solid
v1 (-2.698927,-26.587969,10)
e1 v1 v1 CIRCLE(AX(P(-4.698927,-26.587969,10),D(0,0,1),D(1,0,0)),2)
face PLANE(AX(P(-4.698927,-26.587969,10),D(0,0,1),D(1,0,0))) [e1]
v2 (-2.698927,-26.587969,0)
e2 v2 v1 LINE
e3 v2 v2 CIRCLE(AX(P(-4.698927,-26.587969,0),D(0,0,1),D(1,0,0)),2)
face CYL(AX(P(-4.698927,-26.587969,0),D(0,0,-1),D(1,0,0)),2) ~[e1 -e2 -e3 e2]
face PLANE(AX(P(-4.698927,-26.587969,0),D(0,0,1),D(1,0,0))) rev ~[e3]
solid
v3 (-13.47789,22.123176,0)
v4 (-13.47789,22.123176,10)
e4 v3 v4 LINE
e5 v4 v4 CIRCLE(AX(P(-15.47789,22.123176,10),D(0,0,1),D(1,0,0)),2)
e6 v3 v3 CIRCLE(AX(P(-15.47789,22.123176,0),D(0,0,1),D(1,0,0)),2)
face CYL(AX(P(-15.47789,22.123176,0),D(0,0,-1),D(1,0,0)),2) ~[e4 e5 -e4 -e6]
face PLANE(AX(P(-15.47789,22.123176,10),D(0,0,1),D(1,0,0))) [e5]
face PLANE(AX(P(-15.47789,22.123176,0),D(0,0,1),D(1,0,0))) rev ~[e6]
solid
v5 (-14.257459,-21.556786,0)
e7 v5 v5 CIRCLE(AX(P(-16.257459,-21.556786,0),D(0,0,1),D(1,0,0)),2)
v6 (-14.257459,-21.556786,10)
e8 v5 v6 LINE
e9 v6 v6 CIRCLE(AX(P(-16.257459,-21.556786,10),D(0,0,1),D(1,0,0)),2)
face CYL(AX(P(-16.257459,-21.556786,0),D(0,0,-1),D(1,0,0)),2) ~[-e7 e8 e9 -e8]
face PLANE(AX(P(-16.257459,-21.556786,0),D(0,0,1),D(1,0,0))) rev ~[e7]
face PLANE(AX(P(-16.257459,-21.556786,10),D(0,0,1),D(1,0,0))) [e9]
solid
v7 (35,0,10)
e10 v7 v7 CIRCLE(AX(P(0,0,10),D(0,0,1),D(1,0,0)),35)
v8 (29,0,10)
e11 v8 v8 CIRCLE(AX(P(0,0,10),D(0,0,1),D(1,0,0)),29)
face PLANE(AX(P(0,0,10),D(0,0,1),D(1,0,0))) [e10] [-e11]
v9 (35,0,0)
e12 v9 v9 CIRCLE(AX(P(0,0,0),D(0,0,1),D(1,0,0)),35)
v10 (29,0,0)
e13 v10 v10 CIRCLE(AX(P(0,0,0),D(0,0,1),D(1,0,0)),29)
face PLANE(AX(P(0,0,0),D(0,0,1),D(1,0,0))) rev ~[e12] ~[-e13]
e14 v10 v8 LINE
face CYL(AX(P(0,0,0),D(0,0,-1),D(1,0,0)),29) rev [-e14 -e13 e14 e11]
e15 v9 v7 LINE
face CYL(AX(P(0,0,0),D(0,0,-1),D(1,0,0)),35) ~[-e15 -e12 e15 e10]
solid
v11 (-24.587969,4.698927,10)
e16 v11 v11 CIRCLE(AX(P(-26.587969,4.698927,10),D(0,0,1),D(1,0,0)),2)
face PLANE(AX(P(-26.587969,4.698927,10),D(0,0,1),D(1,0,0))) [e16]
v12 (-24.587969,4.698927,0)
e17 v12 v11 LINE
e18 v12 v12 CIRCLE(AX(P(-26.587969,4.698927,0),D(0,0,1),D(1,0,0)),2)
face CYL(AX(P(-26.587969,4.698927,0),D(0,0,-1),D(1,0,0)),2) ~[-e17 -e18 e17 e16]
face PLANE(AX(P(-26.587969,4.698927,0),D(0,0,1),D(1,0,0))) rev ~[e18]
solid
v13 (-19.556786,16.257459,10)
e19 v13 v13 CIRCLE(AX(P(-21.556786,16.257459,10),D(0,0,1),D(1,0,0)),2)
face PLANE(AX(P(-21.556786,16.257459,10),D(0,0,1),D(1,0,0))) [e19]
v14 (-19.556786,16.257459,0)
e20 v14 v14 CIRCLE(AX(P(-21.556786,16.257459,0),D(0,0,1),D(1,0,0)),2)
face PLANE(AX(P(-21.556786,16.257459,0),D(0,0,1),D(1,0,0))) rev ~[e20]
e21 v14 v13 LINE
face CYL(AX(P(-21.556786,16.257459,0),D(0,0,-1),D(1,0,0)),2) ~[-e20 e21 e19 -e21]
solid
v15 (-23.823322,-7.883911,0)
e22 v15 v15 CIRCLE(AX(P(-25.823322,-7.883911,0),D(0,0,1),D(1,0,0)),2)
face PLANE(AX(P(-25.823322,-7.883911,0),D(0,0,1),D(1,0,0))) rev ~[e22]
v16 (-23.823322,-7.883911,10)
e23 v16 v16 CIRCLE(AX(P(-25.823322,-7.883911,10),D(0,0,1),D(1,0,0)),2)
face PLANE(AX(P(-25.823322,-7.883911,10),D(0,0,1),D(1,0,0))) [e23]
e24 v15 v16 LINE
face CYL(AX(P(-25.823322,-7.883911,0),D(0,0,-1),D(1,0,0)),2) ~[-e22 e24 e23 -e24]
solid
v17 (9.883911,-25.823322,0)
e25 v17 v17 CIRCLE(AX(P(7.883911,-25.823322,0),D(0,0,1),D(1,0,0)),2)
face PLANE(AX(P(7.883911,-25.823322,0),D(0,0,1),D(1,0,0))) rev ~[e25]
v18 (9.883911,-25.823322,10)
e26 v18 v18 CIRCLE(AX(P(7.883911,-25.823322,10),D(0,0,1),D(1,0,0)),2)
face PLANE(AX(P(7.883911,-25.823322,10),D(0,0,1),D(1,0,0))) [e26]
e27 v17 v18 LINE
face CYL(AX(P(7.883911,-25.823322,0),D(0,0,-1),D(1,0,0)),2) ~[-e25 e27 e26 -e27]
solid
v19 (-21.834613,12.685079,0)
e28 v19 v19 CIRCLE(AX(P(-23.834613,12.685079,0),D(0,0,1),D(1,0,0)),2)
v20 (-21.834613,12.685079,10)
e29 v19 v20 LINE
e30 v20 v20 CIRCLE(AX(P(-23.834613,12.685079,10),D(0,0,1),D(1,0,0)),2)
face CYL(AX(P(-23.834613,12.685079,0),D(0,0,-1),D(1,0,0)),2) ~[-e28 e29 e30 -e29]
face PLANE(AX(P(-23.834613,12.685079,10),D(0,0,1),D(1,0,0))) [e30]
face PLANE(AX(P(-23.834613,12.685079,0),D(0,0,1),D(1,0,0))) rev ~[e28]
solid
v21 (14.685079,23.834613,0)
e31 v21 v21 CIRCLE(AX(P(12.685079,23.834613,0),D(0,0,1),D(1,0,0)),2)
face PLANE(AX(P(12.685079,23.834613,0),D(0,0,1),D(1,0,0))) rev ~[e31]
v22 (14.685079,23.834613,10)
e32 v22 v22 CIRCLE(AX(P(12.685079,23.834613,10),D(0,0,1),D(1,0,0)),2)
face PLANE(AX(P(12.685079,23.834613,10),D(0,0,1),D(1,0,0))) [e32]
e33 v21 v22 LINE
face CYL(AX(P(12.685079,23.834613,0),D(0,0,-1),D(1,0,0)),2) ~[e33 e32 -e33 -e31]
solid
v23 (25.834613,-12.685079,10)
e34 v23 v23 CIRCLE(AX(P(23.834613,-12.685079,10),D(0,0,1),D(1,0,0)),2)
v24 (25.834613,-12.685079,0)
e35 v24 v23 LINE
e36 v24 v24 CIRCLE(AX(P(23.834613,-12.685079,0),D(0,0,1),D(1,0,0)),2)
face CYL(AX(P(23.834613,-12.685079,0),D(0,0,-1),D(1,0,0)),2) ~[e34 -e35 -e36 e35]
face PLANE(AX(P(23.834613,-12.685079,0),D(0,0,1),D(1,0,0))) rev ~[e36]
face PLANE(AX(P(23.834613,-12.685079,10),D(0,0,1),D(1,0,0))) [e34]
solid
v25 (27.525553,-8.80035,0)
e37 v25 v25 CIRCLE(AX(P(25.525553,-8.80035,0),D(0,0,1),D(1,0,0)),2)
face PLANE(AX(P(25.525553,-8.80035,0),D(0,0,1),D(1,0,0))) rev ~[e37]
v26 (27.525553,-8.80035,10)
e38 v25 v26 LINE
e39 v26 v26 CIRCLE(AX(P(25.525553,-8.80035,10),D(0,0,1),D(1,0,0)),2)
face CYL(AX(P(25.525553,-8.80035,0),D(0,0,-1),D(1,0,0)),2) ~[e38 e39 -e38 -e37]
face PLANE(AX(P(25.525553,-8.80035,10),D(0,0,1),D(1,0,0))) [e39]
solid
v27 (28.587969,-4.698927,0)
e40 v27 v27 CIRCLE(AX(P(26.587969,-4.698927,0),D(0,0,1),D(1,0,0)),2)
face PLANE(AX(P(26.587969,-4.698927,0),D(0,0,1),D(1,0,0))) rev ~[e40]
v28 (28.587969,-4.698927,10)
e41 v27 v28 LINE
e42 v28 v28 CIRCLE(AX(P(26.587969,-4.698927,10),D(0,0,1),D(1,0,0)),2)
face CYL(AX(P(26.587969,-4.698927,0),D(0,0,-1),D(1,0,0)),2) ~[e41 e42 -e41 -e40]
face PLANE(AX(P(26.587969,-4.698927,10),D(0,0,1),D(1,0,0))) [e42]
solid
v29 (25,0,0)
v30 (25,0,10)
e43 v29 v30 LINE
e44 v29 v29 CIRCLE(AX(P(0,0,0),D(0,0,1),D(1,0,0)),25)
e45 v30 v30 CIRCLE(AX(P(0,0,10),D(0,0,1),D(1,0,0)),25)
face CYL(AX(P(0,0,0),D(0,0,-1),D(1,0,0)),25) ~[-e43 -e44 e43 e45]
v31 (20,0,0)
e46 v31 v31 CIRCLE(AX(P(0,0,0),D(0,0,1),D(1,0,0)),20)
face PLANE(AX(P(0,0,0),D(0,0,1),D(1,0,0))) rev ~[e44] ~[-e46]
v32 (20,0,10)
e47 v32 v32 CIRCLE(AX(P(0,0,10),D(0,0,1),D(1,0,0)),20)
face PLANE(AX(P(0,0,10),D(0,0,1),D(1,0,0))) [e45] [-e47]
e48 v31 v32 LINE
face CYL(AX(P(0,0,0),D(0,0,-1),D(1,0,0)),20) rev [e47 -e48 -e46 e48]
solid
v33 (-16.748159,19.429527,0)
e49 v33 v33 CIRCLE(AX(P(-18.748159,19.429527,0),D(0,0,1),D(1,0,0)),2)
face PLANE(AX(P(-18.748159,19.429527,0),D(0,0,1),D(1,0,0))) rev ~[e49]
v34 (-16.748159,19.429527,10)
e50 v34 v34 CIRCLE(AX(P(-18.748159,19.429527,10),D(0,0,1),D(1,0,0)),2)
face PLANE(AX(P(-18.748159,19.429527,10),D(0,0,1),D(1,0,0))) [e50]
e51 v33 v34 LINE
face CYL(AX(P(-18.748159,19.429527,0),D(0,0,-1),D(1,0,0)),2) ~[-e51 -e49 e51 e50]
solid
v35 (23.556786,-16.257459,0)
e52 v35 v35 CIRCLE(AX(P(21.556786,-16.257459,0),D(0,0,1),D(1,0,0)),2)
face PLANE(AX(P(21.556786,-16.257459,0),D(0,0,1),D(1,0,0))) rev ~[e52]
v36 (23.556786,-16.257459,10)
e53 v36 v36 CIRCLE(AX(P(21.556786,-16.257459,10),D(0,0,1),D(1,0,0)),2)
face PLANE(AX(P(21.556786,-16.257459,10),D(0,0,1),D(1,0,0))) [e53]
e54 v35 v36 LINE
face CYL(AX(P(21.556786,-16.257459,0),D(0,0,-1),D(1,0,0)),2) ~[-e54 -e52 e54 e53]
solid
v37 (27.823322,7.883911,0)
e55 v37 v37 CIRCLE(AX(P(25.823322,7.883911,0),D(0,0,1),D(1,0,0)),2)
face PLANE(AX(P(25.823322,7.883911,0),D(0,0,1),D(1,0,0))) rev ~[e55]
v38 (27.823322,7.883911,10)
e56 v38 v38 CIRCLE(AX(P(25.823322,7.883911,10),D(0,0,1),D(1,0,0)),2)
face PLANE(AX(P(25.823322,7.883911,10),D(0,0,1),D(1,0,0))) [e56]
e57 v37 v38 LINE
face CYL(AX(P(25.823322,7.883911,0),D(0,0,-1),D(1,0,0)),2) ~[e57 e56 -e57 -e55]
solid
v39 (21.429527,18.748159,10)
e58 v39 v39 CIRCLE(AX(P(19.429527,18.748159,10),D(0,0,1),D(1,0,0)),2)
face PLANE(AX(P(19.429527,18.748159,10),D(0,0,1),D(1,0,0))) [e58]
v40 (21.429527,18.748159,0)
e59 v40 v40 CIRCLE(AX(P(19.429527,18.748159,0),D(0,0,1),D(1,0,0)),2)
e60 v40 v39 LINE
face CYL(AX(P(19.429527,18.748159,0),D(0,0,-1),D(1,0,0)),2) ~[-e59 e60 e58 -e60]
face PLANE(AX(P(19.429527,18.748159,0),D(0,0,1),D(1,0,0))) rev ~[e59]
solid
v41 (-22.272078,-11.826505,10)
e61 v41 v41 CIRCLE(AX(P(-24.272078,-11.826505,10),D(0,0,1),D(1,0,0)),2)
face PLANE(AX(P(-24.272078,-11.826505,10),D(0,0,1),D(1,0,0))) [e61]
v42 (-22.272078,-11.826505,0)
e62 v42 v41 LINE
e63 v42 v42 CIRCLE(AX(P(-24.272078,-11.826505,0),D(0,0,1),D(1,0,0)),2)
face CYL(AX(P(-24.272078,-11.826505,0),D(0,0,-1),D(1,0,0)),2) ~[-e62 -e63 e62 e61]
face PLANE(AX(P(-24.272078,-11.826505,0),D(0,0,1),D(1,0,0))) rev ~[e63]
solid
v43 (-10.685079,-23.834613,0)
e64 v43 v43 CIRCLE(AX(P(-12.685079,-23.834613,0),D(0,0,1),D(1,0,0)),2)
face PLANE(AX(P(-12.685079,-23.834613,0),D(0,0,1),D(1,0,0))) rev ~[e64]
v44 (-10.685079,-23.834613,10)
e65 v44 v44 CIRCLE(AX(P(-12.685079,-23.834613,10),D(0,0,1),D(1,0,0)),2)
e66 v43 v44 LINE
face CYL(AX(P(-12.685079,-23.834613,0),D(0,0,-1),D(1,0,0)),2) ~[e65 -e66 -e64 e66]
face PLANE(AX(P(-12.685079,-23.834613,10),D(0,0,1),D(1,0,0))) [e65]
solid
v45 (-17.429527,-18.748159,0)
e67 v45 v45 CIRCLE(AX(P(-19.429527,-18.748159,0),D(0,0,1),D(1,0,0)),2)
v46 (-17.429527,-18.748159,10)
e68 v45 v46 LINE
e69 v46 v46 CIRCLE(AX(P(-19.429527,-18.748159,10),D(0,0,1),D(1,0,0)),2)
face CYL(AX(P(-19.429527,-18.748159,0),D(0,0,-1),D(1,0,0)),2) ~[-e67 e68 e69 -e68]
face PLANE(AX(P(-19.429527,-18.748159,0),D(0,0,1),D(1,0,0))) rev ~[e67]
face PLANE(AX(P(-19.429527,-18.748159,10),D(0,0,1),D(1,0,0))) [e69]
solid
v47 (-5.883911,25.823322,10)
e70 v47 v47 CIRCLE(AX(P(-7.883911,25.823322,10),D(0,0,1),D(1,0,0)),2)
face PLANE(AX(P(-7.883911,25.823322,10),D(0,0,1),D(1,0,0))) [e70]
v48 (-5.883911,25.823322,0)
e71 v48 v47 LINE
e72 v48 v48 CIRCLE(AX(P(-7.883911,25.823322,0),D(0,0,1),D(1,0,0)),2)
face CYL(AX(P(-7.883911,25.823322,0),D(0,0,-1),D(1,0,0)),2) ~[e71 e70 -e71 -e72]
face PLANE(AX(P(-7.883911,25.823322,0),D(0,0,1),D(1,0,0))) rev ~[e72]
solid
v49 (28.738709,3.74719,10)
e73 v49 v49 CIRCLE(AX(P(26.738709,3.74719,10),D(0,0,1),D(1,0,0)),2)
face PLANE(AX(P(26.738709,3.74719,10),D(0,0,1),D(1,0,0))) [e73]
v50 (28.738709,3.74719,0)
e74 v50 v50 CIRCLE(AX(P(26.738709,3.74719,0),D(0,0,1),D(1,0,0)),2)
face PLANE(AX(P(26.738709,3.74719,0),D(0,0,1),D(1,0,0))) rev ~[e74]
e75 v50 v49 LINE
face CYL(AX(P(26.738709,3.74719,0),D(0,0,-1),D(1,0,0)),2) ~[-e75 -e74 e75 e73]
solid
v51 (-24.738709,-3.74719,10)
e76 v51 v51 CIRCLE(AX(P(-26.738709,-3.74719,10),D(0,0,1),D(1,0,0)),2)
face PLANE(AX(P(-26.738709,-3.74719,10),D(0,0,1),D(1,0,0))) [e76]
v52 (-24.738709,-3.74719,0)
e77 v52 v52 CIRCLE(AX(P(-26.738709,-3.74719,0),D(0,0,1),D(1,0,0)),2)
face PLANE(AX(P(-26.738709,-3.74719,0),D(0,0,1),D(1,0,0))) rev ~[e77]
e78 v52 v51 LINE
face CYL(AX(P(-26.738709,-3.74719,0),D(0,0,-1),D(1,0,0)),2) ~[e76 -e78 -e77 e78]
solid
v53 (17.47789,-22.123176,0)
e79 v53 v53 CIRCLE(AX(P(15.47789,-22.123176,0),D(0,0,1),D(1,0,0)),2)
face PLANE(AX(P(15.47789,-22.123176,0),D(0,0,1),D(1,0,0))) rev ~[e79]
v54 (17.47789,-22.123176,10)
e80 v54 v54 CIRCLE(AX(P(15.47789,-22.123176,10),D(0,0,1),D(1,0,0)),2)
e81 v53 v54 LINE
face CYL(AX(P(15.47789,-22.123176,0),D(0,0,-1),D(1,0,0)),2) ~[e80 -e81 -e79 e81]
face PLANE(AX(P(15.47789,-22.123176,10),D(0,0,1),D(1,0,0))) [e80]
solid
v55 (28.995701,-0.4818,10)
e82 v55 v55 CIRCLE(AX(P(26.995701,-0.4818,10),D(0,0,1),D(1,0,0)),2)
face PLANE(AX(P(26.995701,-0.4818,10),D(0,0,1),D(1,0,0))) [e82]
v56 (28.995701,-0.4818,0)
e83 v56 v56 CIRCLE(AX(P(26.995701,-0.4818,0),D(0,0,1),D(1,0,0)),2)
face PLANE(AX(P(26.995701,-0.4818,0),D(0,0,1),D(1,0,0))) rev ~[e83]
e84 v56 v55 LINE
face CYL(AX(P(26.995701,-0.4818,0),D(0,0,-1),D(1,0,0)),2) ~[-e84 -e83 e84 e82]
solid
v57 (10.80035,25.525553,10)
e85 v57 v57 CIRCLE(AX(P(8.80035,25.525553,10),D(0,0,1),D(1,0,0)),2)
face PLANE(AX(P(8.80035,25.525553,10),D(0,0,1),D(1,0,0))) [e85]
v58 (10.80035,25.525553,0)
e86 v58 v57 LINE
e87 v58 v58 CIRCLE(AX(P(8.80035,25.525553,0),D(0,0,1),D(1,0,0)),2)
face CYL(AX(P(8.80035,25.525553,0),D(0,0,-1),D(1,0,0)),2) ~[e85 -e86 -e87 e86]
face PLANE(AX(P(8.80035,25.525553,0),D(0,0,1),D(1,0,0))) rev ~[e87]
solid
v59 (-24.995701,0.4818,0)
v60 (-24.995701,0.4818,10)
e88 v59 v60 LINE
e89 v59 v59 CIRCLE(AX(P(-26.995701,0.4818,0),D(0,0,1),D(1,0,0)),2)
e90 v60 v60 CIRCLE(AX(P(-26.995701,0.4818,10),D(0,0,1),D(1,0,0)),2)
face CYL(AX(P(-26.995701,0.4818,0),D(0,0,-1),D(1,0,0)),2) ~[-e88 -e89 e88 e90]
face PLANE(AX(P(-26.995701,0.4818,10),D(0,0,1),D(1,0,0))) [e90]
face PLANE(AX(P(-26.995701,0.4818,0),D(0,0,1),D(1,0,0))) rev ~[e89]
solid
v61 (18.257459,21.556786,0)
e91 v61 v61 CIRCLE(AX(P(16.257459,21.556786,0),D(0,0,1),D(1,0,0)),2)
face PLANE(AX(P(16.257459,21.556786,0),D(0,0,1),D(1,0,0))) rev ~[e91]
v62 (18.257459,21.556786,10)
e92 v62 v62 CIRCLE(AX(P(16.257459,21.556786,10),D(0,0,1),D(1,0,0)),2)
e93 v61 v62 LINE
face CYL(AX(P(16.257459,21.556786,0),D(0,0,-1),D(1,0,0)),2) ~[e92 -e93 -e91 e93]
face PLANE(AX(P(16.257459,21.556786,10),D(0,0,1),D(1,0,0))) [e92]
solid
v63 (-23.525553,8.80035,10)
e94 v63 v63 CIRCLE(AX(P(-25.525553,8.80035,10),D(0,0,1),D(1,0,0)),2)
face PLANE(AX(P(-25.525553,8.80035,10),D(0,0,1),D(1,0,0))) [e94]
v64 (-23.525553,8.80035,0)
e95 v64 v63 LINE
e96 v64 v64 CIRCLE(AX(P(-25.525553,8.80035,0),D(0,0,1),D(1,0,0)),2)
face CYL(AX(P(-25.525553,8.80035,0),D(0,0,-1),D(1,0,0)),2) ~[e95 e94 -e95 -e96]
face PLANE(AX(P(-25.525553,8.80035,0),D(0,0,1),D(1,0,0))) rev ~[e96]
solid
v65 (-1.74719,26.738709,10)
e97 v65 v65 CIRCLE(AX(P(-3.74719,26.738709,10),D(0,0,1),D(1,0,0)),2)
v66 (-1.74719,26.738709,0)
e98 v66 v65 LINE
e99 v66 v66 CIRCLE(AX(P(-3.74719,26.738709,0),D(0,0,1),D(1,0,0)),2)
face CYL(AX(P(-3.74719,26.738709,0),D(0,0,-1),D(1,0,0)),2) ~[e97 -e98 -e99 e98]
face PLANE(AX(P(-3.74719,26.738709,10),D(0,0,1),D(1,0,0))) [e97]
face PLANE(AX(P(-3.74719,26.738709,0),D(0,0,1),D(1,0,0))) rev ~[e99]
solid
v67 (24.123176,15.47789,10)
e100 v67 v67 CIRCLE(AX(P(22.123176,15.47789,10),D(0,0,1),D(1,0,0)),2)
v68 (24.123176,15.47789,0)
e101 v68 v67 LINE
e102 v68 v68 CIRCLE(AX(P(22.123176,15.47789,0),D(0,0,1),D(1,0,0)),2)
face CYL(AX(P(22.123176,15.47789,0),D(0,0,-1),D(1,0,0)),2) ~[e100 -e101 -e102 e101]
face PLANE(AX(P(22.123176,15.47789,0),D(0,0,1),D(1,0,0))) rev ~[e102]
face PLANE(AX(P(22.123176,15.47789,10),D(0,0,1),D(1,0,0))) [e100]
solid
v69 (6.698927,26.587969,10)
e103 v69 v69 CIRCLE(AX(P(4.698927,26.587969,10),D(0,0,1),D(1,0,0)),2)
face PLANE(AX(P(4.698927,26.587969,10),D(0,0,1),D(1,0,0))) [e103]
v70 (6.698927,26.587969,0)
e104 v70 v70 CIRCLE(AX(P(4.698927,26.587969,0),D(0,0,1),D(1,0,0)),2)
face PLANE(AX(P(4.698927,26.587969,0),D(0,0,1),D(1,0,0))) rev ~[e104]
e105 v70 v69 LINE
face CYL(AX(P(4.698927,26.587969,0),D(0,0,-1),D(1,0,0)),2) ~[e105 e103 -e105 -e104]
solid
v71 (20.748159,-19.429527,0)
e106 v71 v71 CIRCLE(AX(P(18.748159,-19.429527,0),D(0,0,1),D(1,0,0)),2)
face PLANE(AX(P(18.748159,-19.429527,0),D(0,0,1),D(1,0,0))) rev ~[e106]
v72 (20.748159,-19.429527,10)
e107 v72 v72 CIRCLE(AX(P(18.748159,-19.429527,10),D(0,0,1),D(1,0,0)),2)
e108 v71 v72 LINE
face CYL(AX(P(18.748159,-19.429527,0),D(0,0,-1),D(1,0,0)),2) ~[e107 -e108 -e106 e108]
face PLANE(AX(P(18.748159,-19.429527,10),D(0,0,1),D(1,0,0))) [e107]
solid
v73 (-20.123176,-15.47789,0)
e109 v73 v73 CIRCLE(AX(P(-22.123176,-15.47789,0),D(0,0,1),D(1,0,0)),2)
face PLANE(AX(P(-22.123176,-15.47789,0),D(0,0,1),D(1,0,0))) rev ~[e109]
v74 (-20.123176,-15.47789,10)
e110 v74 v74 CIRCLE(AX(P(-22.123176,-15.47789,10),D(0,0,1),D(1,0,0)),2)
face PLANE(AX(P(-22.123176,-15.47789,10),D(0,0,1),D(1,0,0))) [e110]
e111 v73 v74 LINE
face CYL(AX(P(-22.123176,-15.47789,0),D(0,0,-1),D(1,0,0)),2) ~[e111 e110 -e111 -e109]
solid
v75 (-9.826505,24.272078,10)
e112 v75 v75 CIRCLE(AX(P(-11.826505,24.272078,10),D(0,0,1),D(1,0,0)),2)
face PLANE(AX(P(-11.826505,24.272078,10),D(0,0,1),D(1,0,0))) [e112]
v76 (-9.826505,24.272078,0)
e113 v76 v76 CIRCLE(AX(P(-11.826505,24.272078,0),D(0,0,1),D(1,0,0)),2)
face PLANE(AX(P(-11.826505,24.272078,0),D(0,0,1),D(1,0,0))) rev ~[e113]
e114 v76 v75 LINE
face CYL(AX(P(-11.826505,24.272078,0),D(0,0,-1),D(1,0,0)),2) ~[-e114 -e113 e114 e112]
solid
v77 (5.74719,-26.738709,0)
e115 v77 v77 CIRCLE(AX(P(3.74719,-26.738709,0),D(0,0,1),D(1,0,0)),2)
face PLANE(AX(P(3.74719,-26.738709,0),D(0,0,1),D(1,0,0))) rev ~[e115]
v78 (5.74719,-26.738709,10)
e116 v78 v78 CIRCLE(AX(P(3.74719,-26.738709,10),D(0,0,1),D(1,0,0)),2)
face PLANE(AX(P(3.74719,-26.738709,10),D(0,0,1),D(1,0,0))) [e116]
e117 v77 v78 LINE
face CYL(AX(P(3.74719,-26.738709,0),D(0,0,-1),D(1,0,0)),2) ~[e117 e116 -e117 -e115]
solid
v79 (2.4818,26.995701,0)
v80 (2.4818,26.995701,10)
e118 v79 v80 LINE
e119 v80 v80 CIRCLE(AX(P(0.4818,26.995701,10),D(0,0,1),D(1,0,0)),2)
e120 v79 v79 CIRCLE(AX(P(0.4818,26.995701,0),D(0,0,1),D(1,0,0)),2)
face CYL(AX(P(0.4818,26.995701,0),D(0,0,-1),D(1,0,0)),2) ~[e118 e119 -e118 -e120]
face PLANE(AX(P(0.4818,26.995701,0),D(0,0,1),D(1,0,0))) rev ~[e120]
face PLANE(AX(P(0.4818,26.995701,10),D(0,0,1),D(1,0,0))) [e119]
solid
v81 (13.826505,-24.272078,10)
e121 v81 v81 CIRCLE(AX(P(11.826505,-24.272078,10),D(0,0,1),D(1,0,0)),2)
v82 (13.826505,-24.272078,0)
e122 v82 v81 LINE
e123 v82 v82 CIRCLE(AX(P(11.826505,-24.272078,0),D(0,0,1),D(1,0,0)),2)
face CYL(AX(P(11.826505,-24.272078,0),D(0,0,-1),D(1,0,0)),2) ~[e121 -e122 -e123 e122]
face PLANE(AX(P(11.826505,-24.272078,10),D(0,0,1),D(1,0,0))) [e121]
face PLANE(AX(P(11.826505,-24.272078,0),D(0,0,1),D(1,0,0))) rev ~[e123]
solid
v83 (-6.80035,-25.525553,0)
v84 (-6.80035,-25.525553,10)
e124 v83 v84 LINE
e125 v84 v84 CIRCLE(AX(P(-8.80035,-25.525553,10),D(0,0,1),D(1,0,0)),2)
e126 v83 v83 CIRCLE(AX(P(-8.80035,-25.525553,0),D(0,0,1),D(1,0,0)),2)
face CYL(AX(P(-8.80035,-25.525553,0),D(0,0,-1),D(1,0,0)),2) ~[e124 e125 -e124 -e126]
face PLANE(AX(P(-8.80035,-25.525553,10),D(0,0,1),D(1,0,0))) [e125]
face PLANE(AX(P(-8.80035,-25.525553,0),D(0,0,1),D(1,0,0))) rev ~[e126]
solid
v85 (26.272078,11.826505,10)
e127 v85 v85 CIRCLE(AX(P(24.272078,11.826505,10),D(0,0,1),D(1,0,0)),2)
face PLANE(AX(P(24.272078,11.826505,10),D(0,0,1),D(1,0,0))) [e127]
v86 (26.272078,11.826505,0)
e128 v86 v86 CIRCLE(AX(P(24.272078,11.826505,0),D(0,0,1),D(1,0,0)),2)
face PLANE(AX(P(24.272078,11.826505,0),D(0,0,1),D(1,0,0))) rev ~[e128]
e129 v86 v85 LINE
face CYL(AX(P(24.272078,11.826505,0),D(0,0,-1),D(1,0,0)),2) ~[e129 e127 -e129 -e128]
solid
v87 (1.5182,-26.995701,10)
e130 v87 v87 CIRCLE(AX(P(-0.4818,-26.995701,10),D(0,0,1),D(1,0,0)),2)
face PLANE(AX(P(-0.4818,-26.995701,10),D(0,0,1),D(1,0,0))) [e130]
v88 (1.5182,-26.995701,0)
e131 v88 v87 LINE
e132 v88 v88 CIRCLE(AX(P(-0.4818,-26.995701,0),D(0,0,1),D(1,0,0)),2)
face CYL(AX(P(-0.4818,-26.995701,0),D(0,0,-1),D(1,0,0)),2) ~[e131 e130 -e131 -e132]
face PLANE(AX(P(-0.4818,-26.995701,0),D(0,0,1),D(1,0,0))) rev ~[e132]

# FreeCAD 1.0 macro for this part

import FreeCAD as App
import Part
import Sketcher
from FreeCAD import Vector
Q = App.Units.Quantity

doc = App.newDocument("Part")
body = doc.addObject("PartDesign::Body", "Body")

# Sketch on XY plane
sketch1 = body.newObject("Sketcher::SketchObject", "Sketch")
sketch1.AttachmentSupport = (doc.getObject("XY_Plane"), [""])
sketch1.MapMode = "FlatFace"
sketch1.addGeometry([
    Part.Circle(Vector(0, 0, 0), Vector(0, 0, 1), 25),
    Part.Circle(Vector(0, 0, 0), Vector(0, 0, 1), 20),
], False)
sketch1.addConstraint([
    Sketcher.Constraint("Coincident", 0, 3, -1, 1),
    Sketcher.Constraint("Coincident", 1, 3, -1, 1),
    Sketcher.Constraint("Diameter", 0, Q("50 mm")),
    Sketcher.Constraint("Diameter", 1, Q("40 mm")),
])
pad1 = body.newObject("PartDesign::Pad", "Pad")
pad1.Profile = sketch1
pad1.Length = 10
body2 = doc.addObject("PartDesign::Body", "Body001")

# Sketch on XY plane
sketch2 = body2.newObject("Sketcher::SketchObject", "Sketch001")
sketch2.AttachmentSupport = (doc.getObject("XY_Plane001"), [""])
sketch2.MapMode = "FlatFace"
sketch2.addGeometry(Part.Circle(Vector(16.3, 21.6, 0), Vector(0, 0, 1), 2), False)
sketch2.addConstraint([
    Sketcher.Constraint("Diameter", 0, Q("4 mm")),
    Sketcher.Constraint("DistanceX", -1, 1, 0, 3, Q("16.257459 mm")),
    Sketcher.Constraint("DistanceY", -1, 1, 0, 3, Q("21.556786 mm")),
])
pad2 = body2.newObject("PartDesign::Pad", "Pad001")
pad2.Profile = sketch2
pad2.Length = 10
body3 = doc.addObject("PartDesign::Body", "Body002")

# Sketch on XY plane
sketch3 = body3.newObject("Sketcher::SketchObject", "Sketch002")
sketch3.AttachmentSupport = (doc.getObject("XY_Plane002"), [""])
sketch3.MapMode = "FlatFace"
sketch3.addGeometry(Part.Circle(Vector(19.4, 18.7, 0), Vector(0, 0, 1), 2), False)
sketch3.addConstraint([
    Sketcher.Constraint("Diameter", 0, Q("4 mm")),
    Sketcher.Constraint("DistanceY", -1, 1, 0, 3, Q("18.748159 mm")),
    Sketcher.Constraint("DistanceX", -1, 1, 0, 3, Q("19.429527 mm")),
])
pad3 = body3.newObject("PartDesign::Pad", "Pad002")
pad3.Profile = sketch3
pad3.Length = 10
body4 = doc.addObject("PartDesign::Body", "Body003")

# Sketch on XY plane
sketch4 = body4.newObject("Sketcher::SketchObject", "Sketch003")
sketch4.AttachmentSupport = (doc.getObject("XY_Plane003"), [""])
sketch4.MapMode = "FlatFace"
sketch4.addGeometry(Part.Circle(Vector(22.1, 15.5, 0), Vector(0, 0, 1), 2), False)
sketch4.addConstraint([
    Sketcher.Constraint("Diameter", 0, Q("4 mm")),
    Sketcher.Constraint("DistanceY", -1, 1, 0, 3, Q("15.47789 mm")),
    Sketcher.Constraint("DistanceX", -1, 1, 0, 3, Q("22.123176 mm")),
])
pad4 = body4.newObject("PartDesign::Pad", "Pad003")
pad4.Profile = sketch4
pad4.Length = 10
body5 = doc.addObject("PartDesign::Body", "Body004")

# Sketch on XY plane
sketch5 = body5.newObject("Sketcher::SketchObject", "Sketch004")
sketch5.AttachmentSupport = (doc.getObject("XY_Plane004"), [""])
sketch5.MapMode = "FlatFace"
sketch5.addGeometry(Part.Circle(Vector(24.3, 11.8, 0), Vector(0, 0, 1), 2), False)
sketch5.addConstraint([
    Sketcher.Constraint("Diameter", 0, Q("4 mm")),
    Sketcher.Constraint("DistanceX", -1, 1, 0, 3, Q("24.272078 mm")),
    Sketcher.Constraint("DistanceY", -1, 1, 0, 3, Q("11.826505 mm")),
])
pad5 = body5.newObject("PartDesign::Pad", "Pad004")
pad5.Profile = sketch5
pad5.Length = 10
body6 = doc.addObject("PartDesign::Body", "Body005")

# Sketch on XY plane
sketch6 = body6.newObject("Sketcher::SketchObject", "Sketch005")
sketch6.AttachmentSupport = (doc.getObject("XY_Plane005"), [""])
sketch6.MapMode = "FlatFace"
sketch6.addGeometry(Part.Circle(Vector(25.8, 7.9, 0), Vector(0, 0, 1), 2), False)
sketch6.addConstraint([
    Sketcher.Constraint("Diameter", 0, Q("4 mm")),
    Sketcher.Constraint("DistanceX", -1, 1, 0, 3, Q("25.823322 mm")),
    Sketcher.Constraint("DistanceY", -1, 1, 0, 3, Q("7.883911 mm")),
])
pad6 = body6.newObject("PartDesign::Pad", "Pad005")
pad6.Profile = sketch6
pad6.Length = 10
body7 = doc.addObject("PartDesign::Body", "Body006")

# Sketch on XY plane
sketch7 = body7.newObject("Sketcher::SketchObject", "Sketch006")
sketch7.AttachmentSupport = (doc.getObject("XY_Plane006"), [""])
sketch7.MapMode = "FlatFace"
sketch7.addGeometry(Part.Circle(Vector(26.7, 3.7, 0), Vector(0, 0, 1), 2), False)
sketch7.addConstraint([
    Sketcher.Constraint("Diameter", 0, Q("4 mm")),
    Sketcher.Constraint("DistanceX", -1, 1, 0, 3, Q("26.738709 mm")),
    Sketcher.Constraint("DistanceY", -1, 1, 0, 3, Q("3.74719 mm")),
])
pad7 = body7.newObject("PartDesign::Pad", "Pad006")
pad7.Profile = sketch7
pad7.Length = 10
body8 = doc.addObject("PartDesign::Body", "Body007")

# Sketch on XY plane
sketch8 = body8.newObject("Sketcher::SketchObject", "Sketch007")
sketch8.AttachmentSupport = (doc.getObject("XY_Plane007"), [""])
sketch8.MapMode = "FlatFace"
sketch8.addGeometry(Part.Circle(Vector(27, -0.5, 0), Vector(0, 0, 1), 2), False)
sketch8.addConstraint([
    Sketcher.Constraint("Diameter", 0, Q("4 mm")),
    Sketcher.Constraint("DistanceX", -1, 1, 0, 3, Q("26.995701 mm")),
    Sketcher.Constraint("DistanceY", 0, 3, -1, 1, Q("0.4818 mm")),
])
pad8 = body8.newObject("PartDesign::Pad", "Pad007")
pad8.Profile = sketch8
pad8.Length = 10
body9 = doc.addObject("PartDesign::Body", "Body008")

# Sketch on XY plane
sketch9 = body9.newObject("Sketcher::SketchObject", "Sketch008")
sketch9.AttachmentSupport = (doc.getObject("XY_Plane008"), [""])
sketch9.MapMode = "FlatFace"
sketch9.addGeometry(Part.Circle(Vector(26.6, -4.7, 0), Vector(0, 0, 1), 2), False)
sketch9.addConstraint([
    Sketcher.Constraint("Diameter", 0, Q("4 mm")),
    Sketcher.Constraint("DistanceX", -1, 1, 0, 3, Q("26.587969 mm")),
    Sketcher.Constraint("DistanceY", 0, 3, -1, 1, Q("4.698927 mm")),
])
pad9 = body9.newObject("PartDesign::Pad", "Pad008")
pad9.Profile = sketch9
pad9.Length = 10
body10 = doc.addObject("PartDesign::Body", "Body009")

# Sketch on XY plane
sketch10 = body10.newObject("Sketcher::SketchObject", "Sketch009")
sketch10.AttachmentSupport = (doc.getObject("XY_Plane009"), [""])
sketch10.MapMode = "FlatFace"
sketch10.addGeometry(Part.Circle(Vector(25.5, -8.8, 0), Vector(0, 0, 1), 2), False)
sketch10.addConstraint([
    Sketcher.Constraint("Diameter", 0, Q("4 mm")),
    Sketcher.Constraint("DistanceY", 0, 3, -1, 1, Q("8.80035 mm")),
    Sketcher.Constraint("DistanceX", -1, 1, 0, 3, Q("25.525553 mm")),
])
pad10 = body10.newObject("PartDesign::Pad", "Pad009")
pad10.Profile = sketch10
pad10.Length = 10
body11 = doc.addObject("PartDesign::Body", "Body010")

# Sketch on XY plane
sketch11 = body11.newObject("Sketcher::SketchObject", "Sketch010")
sketch11.AttachmentSupport = (doc.getObject("XY_Plane010"), [""])
sketch11.MapMode = "FlatFace"
sketch11.addGeometry(Part.Circle(Vector(23.8, -12.7, 0), Vector(0, 0, 1), 2), False)
sketch11.addConstraint([
    Sketcher.Constraint("Diameter", 0, Q("4 mm")),
    Sketcher.Constraint("DistanceY", 0, 3, -1, 1, Q("12.685079 mm")),
    Sketcher.Constraint("DistanceX", -1, 1, 0, 3, Q("23.834613 mm")),
])
pad11 = body11.newObject("PartDesign::Pad", "Pad010")
pad11.Profile = sketch11
pad11.Length = 10
body12 = doc.addObject("PartDesign::Body", "Body011")

# Sketch on XY plane
sketch12 = body12.newObject("Sketcher::SketchObject", "Sketch011")
sketch12.AttachmentSupport = (doc.getObject("XY_Plane011"), [""])
sketch12.MapMode = "FlatFace"
sketch12.addGeometry(Part.Circle(Vector(21.6, -16.3, 0), Vector(0, 0, 1), 2), False)
sketch12.addConstraint([
    Sketcher.Constraint("Diameter", 0, Q("4 mm")),
    Sketcher.Constraint("DistanceY", 0, 3, -1, 1, Q("16.257459 mm")),
    Sketcher.Constraint("DistanceX", -1, 1, 0, 3, Q("21.556786 mm")),
])
pad12 = body12.newObject("PartDesign::Pad", "Pad011")
pad12.Profile = sketch12
pad12.Length = 10
body13 = doc.addObject("PartDesign::Body", "Body012")

# Sketch on XY plane
sketch13 = body13.newObject("Sketcher::SketchObject", "Sketch012")
sketch13.AttachmentSupport = (doc.getObject("XY_Plane012"), [""])
sketch13.MapMode = "FlatFace"
sketch13.addGeometry(Part.Circle(Vector(18.7, -19.4, 0), Vector(0, 0, 1), 2), False)
sketch13.addConstraint([
    Sketcher.Constraint("Diameter", 0, Q("4 mm")),
    Sketcher.Constraint("DistanceX", -1, 1, 0, 3, Q("18.748159 mm")),
    Sketcher.Constraint("DistanceY", 0, 3, -1, 1, Q("19.429527 mm")),
])
pad13 = body13.newObject("PartDesign::Pad", "Pad012")
pad13.Profile = sketch13
pad13.Length = 10
body14 = doc.addObject("PartDesign::Body", "Body013")

# Sketch on XY plane
sketch14 = body14.newObject("Sketcher::SketchObject", "Sketch013")
sketch14.AttachmentSupport = (doc.getObject("XY_Plane013"), [""])
sketch14.MapMode = "FlatFace"
sketch14.addGeometry(Part.Circle(Vector(7.9, -25.8, 0), Vector(0, 0, 1), 2), False)
sketch14.addConstraint([
    Sketcher.Constraint("Diameter", 0, Q("4 mm")),
    Sketcher.Constraint("DistanceX", -1, 1, 0, 3, Q("7.883911 mm")),
    Sketcher.Constraint("DistanceY", 0, 3, -1, 1, Q("25.823322 mm")),
])
pad14 = body14.newObject("PartDesign::Pad", "Pad013")
pad14.Profile = sketch14
pad14.Length = 10
body15 = doc.addObject("PartDesign::Body", "Body014")

# Sketch on XY plane
sketch15 = body15.newObject("Sketcher::SketchObject", "Sketch014")
sketch15.AttachmentSupport = (doc.getObject("XY_Plane014"), [""])
sketch15.MapMode = "FlatFace"
sketch15.addGeometry(Part.Circle(Vector(3.7, -26.7, 0), Vector(0, 0, 1), 2), False)
sketch15.addConstraint([
    Sketcher.Constraint("Diameter", 0, Q("4 mm")),
    Sketcher.Constraint("DistanceX", -1, 1, 0, 3, Q("3.74719 mm")),
    Sketcher.Constraint("DistanceY", 0, 3, -1, 1, Q("26.738709 mm")),
])
pad15 = body15.newObject("PartDesign::Pad", "Pad014")
pad15.Profile = sketch15
pad15.Length = 10
body16 = doc.addObject("PartDesign::Body", "Body015")

# Sketch on XY plane
sketch16 = body16.newObject("Sketcher::SketchObject", "Sketch015")
sketch16.AttachmentSupport = (doc.getObject("XY_Plane015"), [""])
sketch16.MapMode = "FlatFace"
sketch16.addGeometry(Part.Circle(Vector(-0.5, -27, 0), Vector(0, 0, 1), 2), False)
sketch16.addConstraint([
    Sketcher.Constraint("Diameter", 0, Q("4 mm")),
    Sketcher.Constraint("DistanceX", 0, 3, -1, 1, Q("0.4818 mm")),
    Sketcher.Constraint("DistanceY", 0, 3, -1, 1, Q("26.995701 mm")),
])
pad16 = body16.newObject("PartDesign::Pad", "Pad015")
pad16.Profile = sketch16
pad16.Length = 10
body17 = doc.addObject("PartDesign::Body", "Body016")

# Sketch on XY plane
sketch17 = body17.newObject("Sketcher::SketchObject", "Sketch016")
sketch17.AttachmentSupport = (doc.getObject("XY_Plane016"), [""])
sketch17.MapMode = "FlatFace"
sketch17.addGeometry(Part.Circle(Vector(-4.7, -26.6, 0), Vector(0, 0, 1), 2), False)
sketch17.addConstraint([
    Sketcher.Constraint("Diameter", 0, Q("4 mm")),
    Sketcher.Constraint("DistanceY", 0, 3, -1, 1, Q("26.587969 mm")),
    Sketcher.Constraint("DistanceX", 0, 3, -1, 1, Q("4.698927 mm")),
])
pad17 = body17.newObject("PartDesign::Pad", "Pad016")
pad17.Profile = sketch17
pad17.Length = 10
body18 = doc.addObject("PartDesign::Body", "Body017")

# Sketch on XY plane
sketch18 = body18.newObject("Sketcher::SketchObject", "Sketch017")
sketch18.AttachmentSupport = (doc.getObject("XY_Plane017"), [""])
sketch18.MapMode = "FlatFace"
sketch18.addGeometry(Part.Circle(Vector(-8.8, -25.5, 0), Vector(0, 0, 1), 2), False)
sketch18.addConstraint([
    Sketcher.Constraint("Diameter", 0, Q("4 mm")),
    Sketcher.Constraint("DistanceX", 0, 3, -1, 1, Q("8.80035 mm")),
    Sketcher.Constraint("DistanceY", 0, 3, -1, 1, Q("25.525553 mm")),
])
pad18 = body18.newObject("PartDesign::Pad", "Pad017")
pad18.Profile = sketch18
pad18.Length = 10
body19 = doc.addObject("PartDesign::Body", "Body018")

# Sketch on XY plane
sketch19 = body19.newObject("Sketcher::SketchObject", "Sketch018")
sketch19.AttachmentSupport = (doc.getObject("XY_Plane018"), [""])
sketch19.MapMode = "FlatFace"
sketch19.addGeometry(Part.Circle(Vector(-12.7, -23.8, 0), Vector(0, 0, 1), 2), False)
sketch19.addConstraint([
    Sketcher.Constraint("Diameter", 0, Q("4 mm")),
    Sketcher.Constraint("DistanceX", 0, 3, -1, 1, Q("12.685079 mm")),
    Sketcher.Constraint("DistanceY", 0, 3, -1, 1, Q("23.834613 mm")),
])
pad19 = body19.newObject("PartDesign::Pad", "Pad018")
pad19.Profile = sketch19
pad19.Length = 10
body20 = doc.addObject("PartDesign::Body", "Body019")

# Sketch on XY plane
sketch20 = body20.newObject("Sketcher::SketchObject", "Sketch019")
sketch20.AttachmentSupport = (doc.getObject("XY_Plane019"), [""])
sketch20.MapMode = "FlatFace"
sketch20.addGeometry(Part.Circle(Vector(-16.3, -21.6, 0), Vector(0, 0, 1), 2), False)
sketch20.addConstraint([
    Sketcher.Constraint("Diameter", 0, Q("4 mm")),
    Sketcher.Constraint("DistanceX", 0, 3, -1, 1, Q("16.257459 mm")),
    Sketcher.Constraint("DistanceY", 0, 3, -1, 1, Q("21.556786 mm")),
])
pad20 = body20.newObject("PartDesign::Pad", "Pad019")
pad20.Profile = sketch20
pad20.Length = 10
body21 = doc.addObject("PartDesign::Body", "Body020")

# Sketch on XY plane
sketch21 = body21.newObject("Sketcher::SketchObject", "Sketch020")
sketch21.AttachmentSupport = (doc.getObject("XY_Plane020"), [""])
sketch21.MapMode = "FlatFace"
sketch21.addGeometry(Part.Circle(Vector(-19.4, -18.7, 0), Vector(0, 0, 1), 2), False)
sketch21.addConstraint([
    Sketcher.Constraint("Diameter", 0, Q("4 mm")),
    Sketcher.Constraint("DistanceY", 0, 3, -1, 1, Q("18.748159 mm")),
    Sketcher.Constraint("DistanceX", 0, 3, -1, 1, Q("19.429527 mm")),
])
pad21 = body21.newObject("PartDesign::Pad", "Pad020")
pad21.Profile = sketch21
pad21.Length = 10
body22 = doc.addObject("PartDesign::Body", "Body021")

# Sketch on XY plane
sketch22 = body22.newObject("Sketcher::SketchObject", "Sketch021")
sketch22.AttachmentSupport = (doc.getObject("XY_Plane021"), [""])
sketch22.MapMode = "FlatFace"
sketch22.addGeometry(Part.Circle(Vector(-22.1, -15.5, 0), Vector(0, 0, 1), 2), False)
sketch22.addConstraint([
    Sketcher.Constraint("Diameter", 0, Q("4 mm")),
    Sketcher.Constraint("DistanceY", 0, 3, -1, 1, Q("15.47789 mm")),
    Sketcher.Constraint("DistanceX", 0, 3, -1, 1, Q("22.123176 mm")),
])
pad22 = body22.newObject("PartDesign::Pad", "Pad021")
pad22.Profile = sketch22
pad22.Length = 10
body23 = doc.addObject("PartDesign::Body", "Body022")

# Sketch on XY plane
sketch23 = body23.newObject("Sketcher::SketchObject", "Sketch022")
sketch23.AttachmentSupport = (doc.getObject("XY_Plane022"), [""])
sketch23.MapMode = "FlatFace"
sketch23.addGeometry(Part.Circle(Vector(-24.3, -11.8, 0), Vector(0, 0, 1), 2), False)
sketch23.addConstraint([
    Sketcher.Constraint("Diameter", 0, Q("4 mm")),
    Sketcher.Constraint("DistanceX", 0, 3, -1, 1, Q("24.272078 mm")),
    Sketcher.Constraint("DistanceY", 0, 3, -1, 1, Q("11.826505 mm")),
])
pad23 = body23.newObject("PartDesign::Pad", "Pad022")
pad23.Profile = sketch23
pad23.Length = 10
body24 = doc.addObject("PartDesign::Body", "Body023")

# Sketch on XY plane
sketch24 = body24.newObject("Sketcher::SketchObject", "Sketch023")
sketch24.AttachmentSupport = (doc.getObject("XY_Plane023"), [""])
sketch24.MapMode = "FlatFace"
sketch24.addGeometry(Part.Circle(Vector(-25.8, -7.9, 0), Vector(0, 0, 1), 2), False)
sketch24.addConstraint([
    Sketcher.Constraint("Diameter", 0, Q("4 mm")),
    Sketcher.Constraint("DistanceX", 0, 3, -1, 1, Q("25.823322 mm")),
    Sketcher.Constraint("DistanceY", 0, 3, -1, 1, Q("7.883911 mm")),
])
pad24 = body24.newObject("PartDesign::Pad", "Pad023")
pad24.Profile = sketch24
pad24.Length = 10
body25 = doc.addObject("PartDesign::Body", "Body024")

# Sketch on XY plane
sketch25 = body25.newObject("Sketcher::SketchObject", "Sketch024")
sketch25.AttachmentSupport = (doc.getObject("XY_Plane024"), [""])
sketch25.MapMode = "FlatFace"
sketch25.addGeometry(Part.Circle(Vector(-26.7, -3.7, 0), Vector(0, 0, 1), 2), False)
sketch25.addConstraint([
    Sketcher.Constraint("Diameter", 0, Q("4 mm")),
    Sketcher.Constraint("DistanceX", 0, 3, -1, 1, Q("26.738709 mm")),
    Sketcher.Constraint("DistanceY", 0, 3, -1, 1, Q("3.74719 mm")),
])
pad25 = body25.newObject("PartDesign::Pad", "Pad024")
pad25.Profile = sketch25
pad25.Length = 10
body26 = doc.addObject("PartDesign::Body", "Body025")

# Sketch on XY plane
sketch26 = body26.newObject("Sketcher::SketchObject", "Sketch025")
sketch26.AttachmentSupport = (doc.getObject("XY_Plane025"), [""])
sketch26.MapMode = "FlatFace"
sketch26.addGeometry(Part.Circle(Vector(-27, 0.5, 0), Vector(0, 0, 1), 2), False)
sketch26.addConstraint([
    Sketcher.Constraint("Diameter", 0, Q("4 mm")),
    Sketcher.Constraint("DistanceX", 0, 3, -1, 1, Q("26.995701 mm")),
    Sketcher.Constraint("DistanceY", -1, 1, 0, 3, Q("0.4818 mm")),
])
pad26 = body26.newObject("PartDesign::Pad", "Pad025")
pad26.Profile = sketch26
pad26.Length = 10
body27 = doc.addObject("PartDesign::Body", "Body026")

# Sketch on XY plane
sketch27 = body27.newObject("Sketcher::SketchObject", "Sketch026")
sketch27.AttachmentSupport = (doc.getObject("XY_Plane026"), [""])
sketch27.MapMode = "FlatFace"
sketch27.addGeometry(Part.Circle(Vector(-15.5, 22.1, 0), Vector(0, 0, 1), 2), False)
sketch27.addConstraint([
    Sketcher.Constraint("Diameter", 0, Q("4 mm")),
    Sketcher.Constraint("DistanceX", 0, 3, -1, 1, Q("15.47789 mm")),
    Sketcher.Constraint("DistanceY", -1, 1, 0, 3, Q("22.123176 mm")),
])
pad27 = body27.newObject("PartDesign::Pad", "Pad026")
pad27.Profile = sketch27
pad27.Length = 10
body28 = doc.addObject("PartDesign::Body", "Body027")

# Sketch on XY plane
sketch28 = body28.newObject("Sketcher::SketchObject", "Sketch027")
sketch28.AttachmentSupport = (doc.getObject("XY_Plane027"), [""])
sketch28.MapMode = "FlatFace"
sketch28.addGeometry(Part.Circle(Vector(-11.8, 24.3, 0), Vector(0, 0, 1), 2), False)
sketch28.addConstraint([
    Sketcher.Constraint("Diameter", 0, Q("4 mm")),
    Sketcher.Constraint("DistanceY", -1, 1, 0, 3, Q("24.272078 mm")),
    Sketcher.Constraint("DistanceX", 0, 3, -1, 1, Q("11.826505 mm")),
])
pad28 = body28.newObject("PartDesign::Pad", "Pad027")
pad28.Profile = sketch28
pad28.Length = 10
body29 = doc.addObject("PartDesign::Body", "Body028")

# Sketch on XY plane
sketch29 = body29.newObject("Sketcher::SketchObject", "Sketch028")
sketch29.AttachmentSupport = (doc.getObject("XY_Plane028"), [""])
sketch29.MapMode = "FlatFace"
sketch29.addGeometry(Part.Circle(Vector(-7.9, 25.8, 0), Vector(0, 0, 1), 2), False)
sketch29.addConstraint([
    Sketcher.Constraint("Diameter", 0, Q("4 mm")),
    Sketcher.Constraint("DistanceX", 0, 3, -1, 1, Q("7.883911 mm")),
    Sketcher.Constraint("DistanceY", -1, 1, 0, 3, Q("25.823322 mm")),
])
pad29 = body29.newObject("PartDesign::Pad", "Pad028")
pad29.Profile = sketch29
pad29.Length = 10
body30 = doc.addObject("PartDesign::Body", "Body029")

# Sketch on XY plane
sketch30 = body30.newObject("Sketcher::SketchObject", "Sketch029")
sketch30.AttachmentSupport = (doc.getObject("XY_Plane029"), [""])
sketch30.MapMode = "FlatFace"
sketch30.addGeometry(Part.Circle(Vector(-3.7, 26.7, 0), Vector(0, 0, 1), 2), False)
sketch30.addConstraint([
    Sketcher.Constraint("Diameter", 0, Q("4 mm")),
    Sketcher.Constraint("DistanceX", 0, 3, -1, 1, Q("3.74719 mm")),
    Sketcher.Constraint("DistanceY", -1, 1, 0, 3, Q("26.738709 mm")),
])
pad30 = body30.newObject("PartDesign::Pad", "Pad029")
pad30.Profile = sketch30
pad30.Length = 10
body31 = doc.addObject("PartDesign::Body", "Body030")

# Sketch on XY plane
sketch31 = body31.newObject("Sketcher::SketchObject", "Sketch030")
sketch31.AttachmentSupport = (doc.getObject("XY_Plane030"), [""])
sketch31.MapMode = "FlatFace"
sketch31.addGeometry(Part.Circle(Vector(0.5, 27, 0), Vector(0, 0, 1), 2), False)
sketch31.addConstraint([
    Sketcher.Constraint("Diameter", 0, Q("4 mm")),
    Sketcher.Constraint("DistanceX", -1, 1, 0, 3, Q("0.4818 mm")),
    Sketcher.Constraint("DistanceY", -1, 1, 0, 3, Q("26.995701 mm")),
])
pad31 = body31.newObject("PartDesign::Pad", "Pad030")
pad31.Profile = sketch31
pad31.Length = 10
body32 = doc.addObject("PartDesign::Body", "Body031")

# Sketch on XY plane
sketch32 = body32.newObject("Sketcher::SketchObject", "Sketch031")
sketch32.AttachmentSupport = (doc.getObject("XY_Plane031"), [""])
sketch32.MapMode = "FlatFace"
sketch32.addGeometry(Part.Circle(Vector(4.7, 26.6, 0), Vector(0, 0, 1), 2), False)
sketch32.addConstraint([
    Sketcher.Constraint("Diameter", 0, Q("4 mm")),
    Sketcher.Constraint("DistanceY", -1, 1, 0, 3, Q("26.587969 mm")),
    Sketcher.Constraint("DistanceX", -1, 1, 0, 3, Q("4.698927 mm")),
])
pad32 = body32.newObject("PartDesign::Pad", "Pad031")
pad32.Profile = sketch32
pad32.Length = 10
body33 = doc.addObject("PartDesign::Body", "Body032")

# Sketch on XY plane
sketch33 = body33.newObject("Sketcher::SketchObject", "Sketch032")
sketch33.AttachmentSupport = (doc.getObject("XY_Plane032"), [""])
sketch33.MapMode = "FlatFace"
sketch33.addGeometry(Part.Circle(Vector(8.8, 25.5, 0), Vector(0, 0, 1), 2), False)
sketch33.addConstraint([
    Sketcher.Constraint("Diameter", 0, Q("4 mm")),
    Sketcher.Constraint("DistanceX", -1, 1, 0, 3, Q("8.80035 mm")),
    Sketcher.Constraint("DistanceY", -1, 1, 0, 3, Q("25.525553 mm")),
])
pad33 = body33.newObject("PartDesign::Pad", "Pad032")
pad33.Profile = sketch33
pad33.Length = 10
body34 = doc.addObject("PartDesign::Body", "Body033")

# Sketch on XY plane
sketch34 = body34.newObject("Sketcher::SketchObject", "Sketch033")
sketch34.AttachmentSupport = (doc.getObject("XY_Plane033"), [""])
sketch34.MapMode = "FlatFace"
sketch34.addGeometry(Part.Circle(Vector(12.7, 23.8, 0), Vector(0, 0, 1), 2), False)
sketch34.addConstraint([
    Sketcher.Constraint("Diameter", 0, Q("4 mm")),
    Sketcher.Constraint("DistanceX", -1, 1, 0, 3, Q("12.685079 mm")),
    Sketcher.Constraint("DistanceY", -1, 1, 0, 3, Q("23.834613 mm")),
])
pad34 = body34.newObject("PartDesign::Pad", "Pad033")
pad34.Profile = sketch34
pad34.Length = 10
body35 = doc.addObject("PartDesign::Body", "Body034")

# Sketch on XY plane
sketch35 = body35.newObject("Sketcher::SketchObject", "Sketch034")
sketch35.AttachmentSupport = (doc.getObject("XY_Plane034"), [""])
sketch35.MapMode = "FlatFace"
sketch35.addGeometry([
    Part.Circle(Vector(0, 0, 0), Vector(0, 0, 1), 35),
    Part.Circle(Vector(0, 0, 0), Vector(0, 0, 1), 29),
], False)
sketch35.addConstraint([
    Sketcher.Constraint("Coincident", 0, 3, -1, 1),
    Sketcher.Constraint("Coincident", 1, 3, -1, 1),
    Sketcher.Constraint("Diameter", 0, Q("70 mm")),
    Sketcher.Constraint("Diameter", 1, Q("58 mm")),
])
pad35 = body35.newObject("PartDesign::Pad", "Pad034")
pad35.Profile = sketch35
pad35.Length = 10
body36 = doc.addObject("PartDesign::Body", "Body035")

# Sketch on XY plane
sketch36 = body36.newObject("Sketcher::SketchObject", "Sketch035")
sketch36.AttachmentSupport = (doc.getObject("XY_Plane035"), [""])
sketch36.MapMode = "FlatFace"
sketch36.addGeometry(Part.Circle(Vector(15.5, -22.1, 0), Vector(0, 0, 1), 2), False)
sketch36.addConstraint([
    Sketcher.Constraint("Diameter", 0, Q("4 mm")),
    Sketcher.Constraint("DistanceX", -1, 1, 0, 3, Q("15.47789 mm")),
    Sketcher.Constraint("DistanceY", 0, 3, -1, 1, Q("22.123176 mm")),
])
pad36 = body36.newObject("PartDesign::Pad", "Pad035")
pad36.Profile = sketch36
pad36.Length = 10
body37 = doc.addObject("PartDesign::Body", "Body036")

# Sketch on XY plane
sketch37 = body37.newObject("Sketcher::SketchObject", "Sketch036")
sketch37.AttachmentSupport = (doc.getObject("XY_Plane036"), [""])
sketch37.MapMode = "FlatFace"
sketch37.addGeometry(Part.Circle(Vector(11.8, -24.3, 0), Vector(0, 0, 1), 2), False)
sketch37.addConstraint([
    Sketcher.Constraint("Diameter", 0, Q("4 mm")),
    Sketcher.Constraint("DistanceY", 0, 3, -1, 1, Q("24.272078 mm")),
    Sketcher.Constraint("DistanceX", -1, 1, 0, 3, Q("11.826505 mm")),
])
pad37 = body37.newObject("PartDesign::Pad", "Pad036")
pad37.Profile = sketch37
pad37.Length = 10
body38 = doc.addObject("PartDesign::Body", "Body037")

# Sketch on XY plane
sketch38 = body38.newObject("Sketcher::SketchObject", "Sketch037")
sketch38.AttachmentSupport = (doc.getObject("XY_Plane037"), [""])
sketch38.MapMode = "FlatFace"
sketch38.addGeometry(Part.Circle(Vector(-26.6, 4.7, 0), Vector(0, 0, 1), 2), False)
sketch38.addConstraint([
    Sketcher.Constraint("Diameter", 0, Q("4 mm")),
    Sketcher.Constraint("DistanceX", 0, 3, -1, 1, Q("26.587969 mm")),
    Sketcher.Constraint("DistanceY", -1, 1, 0, 3, Q("4.698927 mm")),
])
pad38 = body38.newObject("PartDesign::Pad", "Pad037")
pad38.Profile = sketch38
pad38.Length = 10
body39 = doc.addObject("PartDesign::Body", "Body038")

# Sketch on XY plane
sketch39 = body39.newObject("Sketcher::SketchObject", "Sketch038")
sketch39.AttachmentSupport = (doc.getObject("XY_Plane038"), [""])
sketch39.MapMode = "FlatFace"
sketch39.addGeometry(Part.Circle(Vector(-25.5, 8.8, 0), Vector(0, 0, 1), 2), False)
sketch39.addConstraint([
    Sketcher.Constraint("Diameter", 0, Q("4 mm")),
    Sketcher.Constraint("DistanceY", -1, 1, 0, 3, Q("8.80035 mm")),
    Sketcher.Constraint("DistanceX", 0, 3, -1, 1, Q("25.525553 mm")),
])
pad39 = body39.newObject("PartDesign::Pad", "Pad038")
pad39.Profile = sketch39
pad39.Length = 10
body40 = doc.addObject("PartDesign::Body", "Body039")

# Sketch on XY plane
sketch40 = body40.newObject("Sketcher::SketchObject", "Sketch039")
sketch40.AttachmentSupport = (doc.getObject("XY_Plane039"), [""])
sketch40.MapMode = "FlatFace"
sketch40.addGeometry(Part.Circle(Vector(-23.8, 12.7, 0), Vector(0, 0, 1), 2), False)
sketch40.addConstraint([
    Sketcher.Constraint("Diameter", 0, Q("4 mm")),
    Sketcher.Constraint("DistanceY", -1, 1, 0, 3, Q("12.685079 mm")),
    Sketcher.Constraint("DistanceX", 0, 3, -1, 1, Q("23.834613 mm")),
])
pad40 = body40.newObject("PartDesign::Pad", "Pad039")
pad40.Profile = sketch40
pad40.Length = 10
body41 = doc.addObject("PartDesign::Body", "Body040")

# Sketch on XY plane
sketch41 = body41.newObject("Sketcher::SketchObject", "Sketch040")
sketch41.AttachmentSupport = (doc.getObject("XY_Plane040"), [""])
sketch41.MapMode = "FlatFace"
sketch41.addGeometry(Part.Circle(Vector(-21.6, 16.3, 0), Vector(0, 0, 1), 2), False)
sketch41.addConstraint([
    Sketcher.Constraint("Diameter", 0, Q("4 mm")),
    Sketcher.Constraint("DistanceY", -1, 1, 0, 3, Q("16.257459 mm")),
    Sketcher.Constraint("DistanceX", 0, 3, -1, 1, Q("21.556786 mm")),
])
pad41 = body41.newObject("PartDesign::Pad", "Pad040")
pad41.Profile = sketch41
pad41.Length = 10
body42 = doc.addObject("PartDesign::Body", "Body041")

# Sketch on XY plane
sketch42 = body42.newObject("Sketcher::SketchObject", "Sketch041")
sketch42.AttachmentSupport = (doc.getObject("XY_Plane041"), [""])
sketch42.MapMode = "FlatFace"
sketch42.addGeometry(Part.Circle(Vector(-18.7, 19.4, 0), Vector(0, 0, 1), 2), False)
sketch42.addConstraint([
    Sketcher.Constraint("Diameter", 0, Q("4 mm")),
    Sketcher.Constraint("DistanceX", 0, 3, -1, 1, Q("18.748159 mm")),
    Sketcher.Constraint("DistanceY", -1, 1, 0, 3, Q("19.429527 mm")),
])
pad42 = body42.newObject("PartDesign::Pad", "Pad041")
pad42.Profile = sketch42
pad42.Length = 10

doc.recompute()
